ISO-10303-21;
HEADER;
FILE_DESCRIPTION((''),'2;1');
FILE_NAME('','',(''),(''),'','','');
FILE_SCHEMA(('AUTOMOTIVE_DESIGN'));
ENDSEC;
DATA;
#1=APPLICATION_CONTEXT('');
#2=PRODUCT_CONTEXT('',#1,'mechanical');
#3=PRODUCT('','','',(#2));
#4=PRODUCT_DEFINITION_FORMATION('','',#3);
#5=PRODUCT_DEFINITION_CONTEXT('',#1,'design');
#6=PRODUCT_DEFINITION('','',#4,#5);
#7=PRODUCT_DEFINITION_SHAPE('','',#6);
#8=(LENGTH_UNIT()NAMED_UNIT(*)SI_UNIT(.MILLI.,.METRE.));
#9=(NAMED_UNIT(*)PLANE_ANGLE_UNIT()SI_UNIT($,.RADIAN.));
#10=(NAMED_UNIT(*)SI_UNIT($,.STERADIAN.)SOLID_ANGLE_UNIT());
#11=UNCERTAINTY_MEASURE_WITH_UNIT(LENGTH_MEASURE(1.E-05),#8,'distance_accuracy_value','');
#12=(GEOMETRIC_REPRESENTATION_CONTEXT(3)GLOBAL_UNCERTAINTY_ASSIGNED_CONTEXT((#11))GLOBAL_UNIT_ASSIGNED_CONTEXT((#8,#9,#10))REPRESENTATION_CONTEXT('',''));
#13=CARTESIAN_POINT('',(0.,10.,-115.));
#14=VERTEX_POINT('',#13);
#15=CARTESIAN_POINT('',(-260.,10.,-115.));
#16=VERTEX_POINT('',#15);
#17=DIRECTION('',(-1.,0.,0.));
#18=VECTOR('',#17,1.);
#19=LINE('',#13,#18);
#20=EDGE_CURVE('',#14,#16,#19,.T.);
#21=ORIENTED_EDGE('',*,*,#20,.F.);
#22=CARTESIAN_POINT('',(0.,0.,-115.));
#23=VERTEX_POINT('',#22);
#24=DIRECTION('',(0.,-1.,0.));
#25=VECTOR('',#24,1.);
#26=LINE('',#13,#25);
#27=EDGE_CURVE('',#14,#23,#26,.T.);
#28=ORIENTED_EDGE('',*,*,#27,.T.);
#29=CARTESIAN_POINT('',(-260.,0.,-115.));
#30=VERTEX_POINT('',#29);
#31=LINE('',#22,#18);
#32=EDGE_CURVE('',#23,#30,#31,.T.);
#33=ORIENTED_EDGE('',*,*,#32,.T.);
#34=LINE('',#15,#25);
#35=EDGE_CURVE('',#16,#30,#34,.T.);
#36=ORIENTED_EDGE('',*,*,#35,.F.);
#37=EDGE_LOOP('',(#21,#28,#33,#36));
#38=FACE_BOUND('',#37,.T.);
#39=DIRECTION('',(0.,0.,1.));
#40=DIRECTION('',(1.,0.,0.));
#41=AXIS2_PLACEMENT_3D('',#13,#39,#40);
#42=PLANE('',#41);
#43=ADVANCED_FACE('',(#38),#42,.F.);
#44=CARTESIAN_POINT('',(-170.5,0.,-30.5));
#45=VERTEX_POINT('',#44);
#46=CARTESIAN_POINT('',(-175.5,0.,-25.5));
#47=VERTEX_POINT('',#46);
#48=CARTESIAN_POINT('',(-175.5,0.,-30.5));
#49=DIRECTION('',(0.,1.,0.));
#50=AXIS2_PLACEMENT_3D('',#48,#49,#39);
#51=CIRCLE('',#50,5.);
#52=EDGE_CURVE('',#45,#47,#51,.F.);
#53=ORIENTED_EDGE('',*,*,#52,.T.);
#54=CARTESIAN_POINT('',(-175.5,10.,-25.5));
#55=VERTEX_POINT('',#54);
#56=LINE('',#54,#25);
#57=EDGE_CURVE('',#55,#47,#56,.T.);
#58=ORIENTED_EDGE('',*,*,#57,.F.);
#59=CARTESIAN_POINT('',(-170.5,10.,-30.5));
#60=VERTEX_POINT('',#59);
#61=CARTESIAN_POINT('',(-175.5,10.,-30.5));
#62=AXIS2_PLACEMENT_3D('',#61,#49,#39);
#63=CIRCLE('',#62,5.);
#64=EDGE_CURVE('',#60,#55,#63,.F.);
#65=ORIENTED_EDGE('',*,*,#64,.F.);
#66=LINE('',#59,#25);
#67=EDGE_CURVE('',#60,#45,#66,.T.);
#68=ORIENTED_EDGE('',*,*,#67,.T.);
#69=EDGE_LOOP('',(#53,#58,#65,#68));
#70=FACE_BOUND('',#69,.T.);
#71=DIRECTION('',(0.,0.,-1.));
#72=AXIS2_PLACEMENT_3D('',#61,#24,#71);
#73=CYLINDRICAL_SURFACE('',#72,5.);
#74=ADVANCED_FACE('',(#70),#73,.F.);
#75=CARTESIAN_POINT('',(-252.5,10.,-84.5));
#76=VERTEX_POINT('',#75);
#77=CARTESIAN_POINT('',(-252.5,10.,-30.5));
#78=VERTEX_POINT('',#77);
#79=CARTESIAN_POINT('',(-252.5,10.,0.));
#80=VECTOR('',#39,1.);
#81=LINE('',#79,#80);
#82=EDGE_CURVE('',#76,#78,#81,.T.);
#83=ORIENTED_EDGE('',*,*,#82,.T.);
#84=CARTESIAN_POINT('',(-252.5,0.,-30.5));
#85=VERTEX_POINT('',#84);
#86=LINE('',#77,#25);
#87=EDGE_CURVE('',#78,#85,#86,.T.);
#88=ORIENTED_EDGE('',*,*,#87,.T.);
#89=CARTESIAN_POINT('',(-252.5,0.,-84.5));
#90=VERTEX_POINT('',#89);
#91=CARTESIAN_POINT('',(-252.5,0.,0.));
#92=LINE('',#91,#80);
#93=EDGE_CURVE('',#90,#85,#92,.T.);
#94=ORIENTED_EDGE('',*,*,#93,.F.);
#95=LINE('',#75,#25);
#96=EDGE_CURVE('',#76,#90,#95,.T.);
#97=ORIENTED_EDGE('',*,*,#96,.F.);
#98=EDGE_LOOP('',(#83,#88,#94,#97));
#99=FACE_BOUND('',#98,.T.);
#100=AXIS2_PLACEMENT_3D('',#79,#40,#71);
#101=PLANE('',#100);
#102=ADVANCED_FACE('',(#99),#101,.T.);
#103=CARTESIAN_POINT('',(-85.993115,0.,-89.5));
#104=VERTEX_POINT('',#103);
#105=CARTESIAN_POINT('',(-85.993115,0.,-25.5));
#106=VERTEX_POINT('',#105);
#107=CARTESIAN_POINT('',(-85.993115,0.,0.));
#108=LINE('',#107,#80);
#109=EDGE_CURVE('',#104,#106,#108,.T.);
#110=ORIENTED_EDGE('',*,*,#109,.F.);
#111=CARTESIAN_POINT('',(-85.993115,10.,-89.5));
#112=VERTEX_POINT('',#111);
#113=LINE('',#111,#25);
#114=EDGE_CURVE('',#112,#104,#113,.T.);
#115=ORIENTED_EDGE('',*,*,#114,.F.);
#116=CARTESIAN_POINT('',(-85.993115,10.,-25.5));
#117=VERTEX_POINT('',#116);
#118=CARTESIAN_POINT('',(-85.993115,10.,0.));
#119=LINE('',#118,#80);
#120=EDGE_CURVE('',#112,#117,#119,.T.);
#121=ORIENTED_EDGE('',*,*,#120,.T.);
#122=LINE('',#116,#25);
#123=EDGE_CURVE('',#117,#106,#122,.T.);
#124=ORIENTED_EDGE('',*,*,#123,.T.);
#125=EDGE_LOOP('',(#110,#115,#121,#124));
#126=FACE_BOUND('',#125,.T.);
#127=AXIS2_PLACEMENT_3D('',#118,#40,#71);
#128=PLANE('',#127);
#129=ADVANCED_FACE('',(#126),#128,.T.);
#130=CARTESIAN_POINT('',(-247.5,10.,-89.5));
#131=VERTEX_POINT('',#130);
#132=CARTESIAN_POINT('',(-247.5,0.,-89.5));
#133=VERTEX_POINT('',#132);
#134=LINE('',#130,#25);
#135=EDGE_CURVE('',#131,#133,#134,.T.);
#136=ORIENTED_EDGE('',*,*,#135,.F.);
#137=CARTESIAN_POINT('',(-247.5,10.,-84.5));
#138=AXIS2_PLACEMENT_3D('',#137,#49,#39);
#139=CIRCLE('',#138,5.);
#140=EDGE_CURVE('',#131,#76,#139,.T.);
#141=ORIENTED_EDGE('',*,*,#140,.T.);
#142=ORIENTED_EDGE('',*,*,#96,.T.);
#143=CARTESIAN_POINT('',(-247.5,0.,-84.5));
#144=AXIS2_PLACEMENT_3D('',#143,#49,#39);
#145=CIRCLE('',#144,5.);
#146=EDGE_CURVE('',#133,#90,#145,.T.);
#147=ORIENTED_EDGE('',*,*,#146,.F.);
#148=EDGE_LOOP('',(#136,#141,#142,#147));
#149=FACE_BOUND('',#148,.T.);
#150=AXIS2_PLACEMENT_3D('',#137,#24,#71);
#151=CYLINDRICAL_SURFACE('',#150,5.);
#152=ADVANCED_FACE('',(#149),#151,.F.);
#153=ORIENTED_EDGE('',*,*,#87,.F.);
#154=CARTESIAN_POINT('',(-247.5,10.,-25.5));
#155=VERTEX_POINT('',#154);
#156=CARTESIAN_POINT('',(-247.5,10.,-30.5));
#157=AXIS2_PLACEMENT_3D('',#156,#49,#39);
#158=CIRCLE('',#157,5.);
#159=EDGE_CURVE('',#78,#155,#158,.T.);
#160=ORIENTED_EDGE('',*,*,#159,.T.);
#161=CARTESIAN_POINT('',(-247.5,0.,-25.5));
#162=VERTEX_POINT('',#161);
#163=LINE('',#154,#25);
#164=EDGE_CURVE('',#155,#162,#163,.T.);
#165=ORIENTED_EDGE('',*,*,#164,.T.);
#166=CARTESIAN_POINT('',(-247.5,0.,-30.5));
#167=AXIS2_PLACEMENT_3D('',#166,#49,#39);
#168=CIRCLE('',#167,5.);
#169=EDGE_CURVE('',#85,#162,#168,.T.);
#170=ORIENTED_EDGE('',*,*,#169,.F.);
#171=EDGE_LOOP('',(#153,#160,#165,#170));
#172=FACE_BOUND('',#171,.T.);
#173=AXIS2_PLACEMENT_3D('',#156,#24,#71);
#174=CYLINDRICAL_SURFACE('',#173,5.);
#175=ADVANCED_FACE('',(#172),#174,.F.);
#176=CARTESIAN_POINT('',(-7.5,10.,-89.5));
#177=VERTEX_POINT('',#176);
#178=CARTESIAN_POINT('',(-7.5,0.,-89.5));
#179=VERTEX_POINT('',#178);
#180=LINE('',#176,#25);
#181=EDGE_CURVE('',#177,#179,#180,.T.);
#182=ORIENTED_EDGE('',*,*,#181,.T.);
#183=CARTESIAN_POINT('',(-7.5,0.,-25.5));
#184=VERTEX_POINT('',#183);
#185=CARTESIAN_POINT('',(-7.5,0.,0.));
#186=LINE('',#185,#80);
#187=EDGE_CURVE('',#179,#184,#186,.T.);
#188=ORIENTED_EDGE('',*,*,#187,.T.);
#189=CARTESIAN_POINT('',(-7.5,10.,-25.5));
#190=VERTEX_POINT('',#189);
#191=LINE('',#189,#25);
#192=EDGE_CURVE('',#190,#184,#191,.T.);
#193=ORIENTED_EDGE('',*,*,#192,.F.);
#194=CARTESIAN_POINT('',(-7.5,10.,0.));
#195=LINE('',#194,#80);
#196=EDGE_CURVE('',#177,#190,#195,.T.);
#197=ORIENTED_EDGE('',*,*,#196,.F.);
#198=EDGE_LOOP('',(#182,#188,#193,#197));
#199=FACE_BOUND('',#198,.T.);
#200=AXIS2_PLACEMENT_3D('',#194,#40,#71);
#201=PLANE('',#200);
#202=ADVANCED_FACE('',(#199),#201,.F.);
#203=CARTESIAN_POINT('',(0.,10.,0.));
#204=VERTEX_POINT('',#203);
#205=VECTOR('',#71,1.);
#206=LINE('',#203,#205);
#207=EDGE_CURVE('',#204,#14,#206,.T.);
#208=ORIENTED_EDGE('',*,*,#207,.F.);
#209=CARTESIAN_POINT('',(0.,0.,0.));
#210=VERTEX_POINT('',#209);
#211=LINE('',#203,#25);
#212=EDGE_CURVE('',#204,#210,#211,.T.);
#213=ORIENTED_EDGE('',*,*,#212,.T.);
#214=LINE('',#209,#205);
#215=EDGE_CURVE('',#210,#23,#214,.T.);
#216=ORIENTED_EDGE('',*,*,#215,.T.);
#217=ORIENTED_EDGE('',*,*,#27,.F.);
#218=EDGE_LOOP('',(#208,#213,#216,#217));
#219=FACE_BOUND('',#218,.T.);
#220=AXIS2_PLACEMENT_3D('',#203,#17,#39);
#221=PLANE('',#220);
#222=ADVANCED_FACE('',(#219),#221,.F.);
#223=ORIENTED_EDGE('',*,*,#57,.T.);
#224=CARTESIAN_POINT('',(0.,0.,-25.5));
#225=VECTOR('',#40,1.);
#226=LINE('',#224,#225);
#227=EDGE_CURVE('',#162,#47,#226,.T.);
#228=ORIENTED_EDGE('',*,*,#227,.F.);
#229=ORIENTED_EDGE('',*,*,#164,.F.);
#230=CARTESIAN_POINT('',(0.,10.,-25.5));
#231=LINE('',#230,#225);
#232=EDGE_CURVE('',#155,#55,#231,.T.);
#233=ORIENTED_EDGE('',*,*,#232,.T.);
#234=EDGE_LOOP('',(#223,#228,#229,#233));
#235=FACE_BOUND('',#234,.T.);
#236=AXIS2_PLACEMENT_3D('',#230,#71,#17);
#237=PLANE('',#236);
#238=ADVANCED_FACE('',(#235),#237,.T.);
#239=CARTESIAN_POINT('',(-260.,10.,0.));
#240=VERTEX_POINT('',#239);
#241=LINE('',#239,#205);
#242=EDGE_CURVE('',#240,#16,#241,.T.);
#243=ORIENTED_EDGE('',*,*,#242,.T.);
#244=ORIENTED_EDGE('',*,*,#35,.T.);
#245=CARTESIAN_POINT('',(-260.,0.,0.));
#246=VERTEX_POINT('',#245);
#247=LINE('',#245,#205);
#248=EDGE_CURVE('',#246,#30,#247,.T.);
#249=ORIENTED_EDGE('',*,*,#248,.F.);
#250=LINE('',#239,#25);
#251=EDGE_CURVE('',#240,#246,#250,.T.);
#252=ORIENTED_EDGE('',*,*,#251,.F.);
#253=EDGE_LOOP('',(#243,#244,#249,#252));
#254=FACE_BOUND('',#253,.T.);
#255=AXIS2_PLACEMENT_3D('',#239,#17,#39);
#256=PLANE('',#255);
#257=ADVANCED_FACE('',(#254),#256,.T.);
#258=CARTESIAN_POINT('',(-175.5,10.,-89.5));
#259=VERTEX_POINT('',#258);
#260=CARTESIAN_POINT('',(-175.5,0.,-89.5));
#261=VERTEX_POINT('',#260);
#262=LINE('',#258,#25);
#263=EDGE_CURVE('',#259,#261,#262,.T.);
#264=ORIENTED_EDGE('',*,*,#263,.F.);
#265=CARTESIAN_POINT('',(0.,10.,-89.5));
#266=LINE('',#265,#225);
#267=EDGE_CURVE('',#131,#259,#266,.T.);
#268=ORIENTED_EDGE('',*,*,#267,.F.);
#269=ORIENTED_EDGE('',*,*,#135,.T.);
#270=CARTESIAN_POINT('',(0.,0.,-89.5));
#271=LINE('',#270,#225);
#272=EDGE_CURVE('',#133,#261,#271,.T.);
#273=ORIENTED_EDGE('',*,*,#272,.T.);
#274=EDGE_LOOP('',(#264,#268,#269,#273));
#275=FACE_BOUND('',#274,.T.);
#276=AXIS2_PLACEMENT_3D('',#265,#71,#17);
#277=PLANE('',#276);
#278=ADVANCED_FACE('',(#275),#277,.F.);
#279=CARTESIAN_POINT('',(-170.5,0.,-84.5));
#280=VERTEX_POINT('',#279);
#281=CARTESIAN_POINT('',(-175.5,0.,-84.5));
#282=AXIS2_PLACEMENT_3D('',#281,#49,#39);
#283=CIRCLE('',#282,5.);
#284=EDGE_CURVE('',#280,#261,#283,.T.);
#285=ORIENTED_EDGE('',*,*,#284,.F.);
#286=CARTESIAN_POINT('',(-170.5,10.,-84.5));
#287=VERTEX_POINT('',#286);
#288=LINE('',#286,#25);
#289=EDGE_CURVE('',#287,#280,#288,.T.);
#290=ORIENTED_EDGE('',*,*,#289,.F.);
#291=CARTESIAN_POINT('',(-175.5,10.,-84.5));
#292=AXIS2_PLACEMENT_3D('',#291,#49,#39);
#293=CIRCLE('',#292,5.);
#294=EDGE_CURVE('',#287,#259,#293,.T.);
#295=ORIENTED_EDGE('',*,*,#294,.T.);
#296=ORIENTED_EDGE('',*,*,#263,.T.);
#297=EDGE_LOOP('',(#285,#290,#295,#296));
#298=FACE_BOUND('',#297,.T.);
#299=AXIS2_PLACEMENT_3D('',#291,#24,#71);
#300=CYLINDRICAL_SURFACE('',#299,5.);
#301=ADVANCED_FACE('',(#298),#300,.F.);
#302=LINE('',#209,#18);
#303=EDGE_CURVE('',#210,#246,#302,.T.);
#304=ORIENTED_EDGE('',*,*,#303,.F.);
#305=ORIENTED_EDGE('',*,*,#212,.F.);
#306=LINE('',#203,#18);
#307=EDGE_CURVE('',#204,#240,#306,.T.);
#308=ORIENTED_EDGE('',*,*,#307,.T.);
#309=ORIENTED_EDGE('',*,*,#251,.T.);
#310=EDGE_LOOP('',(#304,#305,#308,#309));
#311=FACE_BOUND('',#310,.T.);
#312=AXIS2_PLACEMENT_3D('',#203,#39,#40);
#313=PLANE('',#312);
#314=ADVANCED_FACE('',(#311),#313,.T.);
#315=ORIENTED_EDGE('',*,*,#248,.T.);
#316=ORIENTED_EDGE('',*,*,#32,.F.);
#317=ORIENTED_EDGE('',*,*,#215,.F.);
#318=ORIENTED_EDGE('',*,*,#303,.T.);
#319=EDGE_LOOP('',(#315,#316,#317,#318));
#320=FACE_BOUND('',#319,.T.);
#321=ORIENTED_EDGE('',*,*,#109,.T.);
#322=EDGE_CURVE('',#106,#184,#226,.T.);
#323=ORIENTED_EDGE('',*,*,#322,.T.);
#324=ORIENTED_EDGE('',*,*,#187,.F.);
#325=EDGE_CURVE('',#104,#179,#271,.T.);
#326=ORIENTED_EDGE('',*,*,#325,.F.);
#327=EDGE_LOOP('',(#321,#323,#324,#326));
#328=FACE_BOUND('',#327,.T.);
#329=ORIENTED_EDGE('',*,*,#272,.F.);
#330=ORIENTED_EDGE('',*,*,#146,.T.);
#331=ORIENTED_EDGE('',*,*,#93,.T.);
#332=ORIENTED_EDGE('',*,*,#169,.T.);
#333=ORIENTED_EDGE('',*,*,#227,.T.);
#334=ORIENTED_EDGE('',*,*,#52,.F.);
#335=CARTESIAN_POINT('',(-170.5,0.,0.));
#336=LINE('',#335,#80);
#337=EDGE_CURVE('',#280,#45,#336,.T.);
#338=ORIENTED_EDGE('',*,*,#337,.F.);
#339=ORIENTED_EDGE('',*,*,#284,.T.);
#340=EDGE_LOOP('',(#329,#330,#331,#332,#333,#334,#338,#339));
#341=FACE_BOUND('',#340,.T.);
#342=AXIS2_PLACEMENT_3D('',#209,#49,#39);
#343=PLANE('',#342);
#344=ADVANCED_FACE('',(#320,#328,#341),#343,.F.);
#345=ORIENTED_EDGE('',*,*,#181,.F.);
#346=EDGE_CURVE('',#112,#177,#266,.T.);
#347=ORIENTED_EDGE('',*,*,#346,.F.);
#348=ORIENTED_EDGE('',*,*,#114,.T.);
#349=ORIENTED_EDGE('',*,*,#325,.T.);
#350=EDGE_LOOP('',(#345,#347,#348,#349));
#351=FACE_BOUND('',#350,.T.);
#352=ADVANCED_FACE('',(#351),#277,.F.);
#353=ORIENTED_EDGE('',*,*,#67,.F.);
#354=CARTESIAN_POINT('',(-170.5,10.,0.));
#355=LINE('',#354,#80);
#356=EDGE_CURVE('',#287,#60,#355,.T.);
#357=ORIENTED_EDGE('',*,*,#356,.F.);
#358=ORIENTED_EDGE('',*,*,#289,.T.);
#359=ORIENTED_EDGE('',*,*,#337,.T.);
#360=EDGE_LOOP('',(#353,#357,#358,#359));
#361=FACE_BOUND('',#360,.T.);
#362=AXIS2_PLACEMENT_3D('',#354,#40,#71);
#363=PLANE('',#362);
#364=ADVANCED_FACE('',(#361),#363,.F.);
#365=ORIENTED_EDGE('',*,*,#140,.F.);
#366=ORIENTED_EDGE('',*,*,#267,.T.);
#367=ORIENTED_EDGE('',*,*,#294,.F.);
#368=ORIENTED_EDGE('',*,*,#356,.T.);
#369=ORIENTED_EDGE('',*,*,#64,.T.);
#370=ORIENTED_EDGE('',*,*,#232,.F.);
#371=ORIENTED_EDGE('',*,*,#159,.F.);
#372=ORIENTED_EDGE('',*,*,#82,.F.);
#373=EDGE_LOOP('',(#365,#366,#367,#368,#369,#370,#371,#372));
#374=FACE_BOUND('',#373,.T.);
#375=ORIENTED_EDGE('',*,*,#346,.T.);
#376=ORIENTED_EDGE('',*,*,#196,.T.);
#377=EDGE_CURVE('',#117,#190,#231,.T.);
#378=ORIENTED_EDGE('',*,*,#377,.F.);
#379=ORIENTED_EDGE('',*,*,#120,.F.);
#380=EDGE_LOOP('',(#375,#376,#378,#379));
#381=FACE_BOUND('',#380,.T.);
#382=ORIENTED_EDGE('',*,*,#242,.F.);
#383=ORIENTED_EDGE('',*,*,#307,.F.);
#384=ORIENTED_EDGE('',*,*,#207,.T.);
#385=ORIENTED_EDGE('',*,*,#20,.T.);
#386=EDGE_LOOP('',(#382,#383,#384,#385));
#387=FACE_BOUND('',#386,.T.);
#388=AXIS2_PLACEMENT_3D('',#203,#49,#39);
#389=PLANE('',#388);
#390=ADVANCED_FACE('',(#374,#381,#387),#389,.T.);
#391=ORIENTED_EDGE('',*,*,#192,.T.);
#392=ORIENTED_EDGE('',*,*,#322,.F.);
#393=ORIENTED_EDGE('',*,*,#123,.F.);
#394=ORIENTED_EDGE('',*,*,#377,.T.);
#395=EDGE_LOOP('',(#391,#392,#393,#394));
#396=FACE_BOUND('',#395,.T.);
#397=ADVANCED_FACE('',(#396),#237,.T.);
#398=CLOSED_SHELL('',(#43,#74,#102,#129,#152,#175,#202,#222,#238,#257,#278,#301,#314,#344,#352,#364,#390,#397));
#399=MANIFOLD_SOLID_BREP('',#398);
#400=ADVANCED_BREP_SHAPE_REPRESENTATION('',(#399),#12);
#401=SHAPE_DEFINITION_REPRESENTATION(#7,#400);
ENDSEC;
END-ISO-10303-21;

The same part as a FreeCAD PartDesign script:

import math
import FreeCAD as App
import Part
import Sketcher


def add_polygon(sketch, points):
    """Adds a closed chain of lines whose ends are joined by coincident constraints."""
    first, n = sketch.GeometryCount, len(points)
    for a, b in zip(points, points[1:] + points[:1]):
        sketch.addGeometry(Part.LineSegment(App.Vector(*a, 0), App.Vector(*b, 0)), False)
    for i in range(n):
        sketch.addConstraint(Sketcher.Constraint("Coincident", first + i, 2, first + (i + 1) % n, 1))

doc = App.newDocument("Part")
body = doc.addObject("PartDesign::Body", "Body")

sketch1 = body.newObject("Sketcher::SketchObject", "Sketch")
sketch1.AttachmentSupport = (doc.getObject("XZ_Plane"), [""])
sketch1.MapMode = "FlatFace"
add_polygon(sketch1, [(-260, -115), (-260, 0), (0, 0), (0, -115)])
sketch1.addGeometry(Part.ArcOfCircle(Part.Circle(App.Vector(-248, -84, 0), App.Vector(0, 0, 1), 5), math.radians(180), math.radians(270)), False)
sketch1.addGeometry(Part.LineSegment(App.Vector(-248, -90, 0), App.Vector(-176, -90, 0)), False)
sketch1.addGeometry(Part.ArcOfCircle(Part.Circle(App.Vector(-176, -84, 0), App.Vector(0, 0, 1), 5), math.radians(-90), math.radians(0)), False)
sketch1.addGeometry(Part.LineSegment(App.Vector(-170, -84, 0), App.Vector(-170, -30, 0)), False)
sketch1.addGeometry(Part.ArcOfCircle(Part.Circle(App.Vector(-176, -30, 0), App.Vector(0, 0, 1), 5), math.radians(0), math.radians(90)), False)
sketch1.addGeometry(Part.LineSegment(App.Vector(-176, -26, 0), App.Vector(-248, -26, 0)), False)
sketch1.addGeometry(Part.ArcOfCircle(Part.Circle(App.Vector(-248, -30, 0), App.Vector(0, 0, 1), 5), math.radians(90), math.radians(180)), False)
sketch1.addGeometry(Part.LineSegment(App.Vector(-252, -30, 0), App.Vector(-252, -84, 0)), False)
add_polygon(sketch1, [(-8, -26), (-86, -26), (-86, -90), (-8, -90)])
sketch1.addConstraint(Sketcher.Constraint("Tangent", 4, 2, 5, 1))
sketch1.addConstraint(Sketcher.Constraint("Tangent", 5, 2, 6, 1))
sketch1.addConstraint(Sketcher.Constraint("Tangent", 6, 2, 7, 1))
sketch1.addConstraint(Sketcher.Constraint("Tangent", 7, 2, 8, 1))
sketch1.addConstraint(Sketcher.Constraint("Tangent", 8, 2, 9, 1))
sketch1.addConstraint(Sketcher.Constraint("Tangent", 9, 2, 10, 1))
sketch1.addConstraint(Sketcher.Constraint("Tangent", 10, 2, 11, 1))
sketch1.addConstraint(Sketcher.Constraint("Tangent", 11, 2, 4, 1))
sketch1.addConstraint(Sketcher.Constraint("Vertical", 0))
sketch1.addConstraint(Sketcher.Constraint("Horizontal", 1))
sketch1.addConstraint(Sketcher.Constraint("Vertical", 2))
sketch1.addConstraint(Sketcher.Constraint("Horizontal", 3))
sketch1.addConstraint(Sketcher.Constraint("Horizontal", 5))
sketch1.addConstraint(Sketcher.Constraint("Vertical", 7))
sketch1.addConstraint(Sketcher.Constraint("Horizontal", 9))
sketch1.addConstraint(Sketcher.Constraint("Vertical", 11))
sketch1.addConstraint(Sketcher.Constraint("Horizontal", 12))
sketch1.addConstraint(Sketcher.Constraint("Vertical", 13))
sketch1.addConstraint(Sketcher.Constraint("Horizontal", 14))
sketch1.addConstraint(Sketcher.Constraint("Vertical", 15))
sketch1.addConstraint(Sketcher.Constraint("Coincident", 1, 2, -1, 1))
sketch1.addConstraint(Sketcher.Constraint("Equal", 4, 6))
sketch1.addConstraint(Sketcher.Constraint("Equal", 6, 8))
sketch1.addConstraint(Sketcher.Constraint("Equal", 8, 10))
sketch1.addConstraint(Sketcher.Constraint("Horizontal", 9, 2, 12, 2))
sketch1.addConstraint(Sketcher.Constraint("Horizontal", 5, 2, 13, 2))
sketch1.addConstraint(Sketcher.Constraint("Radius", 4, 5.0))
sketch1.addConstraint(Sketcher.Constraint("DistanceX", 1, 1, 1, 2, 260.0))
sketch1.addConstraint(Sketcher.Constraint("DistanceX", 5, 1, 5, 2, 72.0))
sketch1.addConstraint(Sketcher.Constraint("DistanceY", 0, 1, 0, 2, 115.0))
sketch1.addConstraint(Sketcher.Constraint("DistanceY", 7, 1, 7, 2, 54.0))
sketch1.addConstraint(Sketcher.Constraint("DistanceX", 6, 2, 14, 2, 163.0))
sketch1.addConstraint(Sketcher.Constraint("DistanceX", 4, 3, -1, 1, 247.5))
sketch1.addConstraint(Sketcher.Constraint("DistanceY", 4, 3, -1, 1, 84.5))
sketch1.addConstraint(Sketcher.Constraint("DistanceX", 12, 2, 12, 1, 78.493115))
pad1 = body.newObject("PartDesign::Pad", "Pad")
pad1.Profile = sketch1
pad1.Length = 10
pad1.Reversed = True

doc.recompute()
